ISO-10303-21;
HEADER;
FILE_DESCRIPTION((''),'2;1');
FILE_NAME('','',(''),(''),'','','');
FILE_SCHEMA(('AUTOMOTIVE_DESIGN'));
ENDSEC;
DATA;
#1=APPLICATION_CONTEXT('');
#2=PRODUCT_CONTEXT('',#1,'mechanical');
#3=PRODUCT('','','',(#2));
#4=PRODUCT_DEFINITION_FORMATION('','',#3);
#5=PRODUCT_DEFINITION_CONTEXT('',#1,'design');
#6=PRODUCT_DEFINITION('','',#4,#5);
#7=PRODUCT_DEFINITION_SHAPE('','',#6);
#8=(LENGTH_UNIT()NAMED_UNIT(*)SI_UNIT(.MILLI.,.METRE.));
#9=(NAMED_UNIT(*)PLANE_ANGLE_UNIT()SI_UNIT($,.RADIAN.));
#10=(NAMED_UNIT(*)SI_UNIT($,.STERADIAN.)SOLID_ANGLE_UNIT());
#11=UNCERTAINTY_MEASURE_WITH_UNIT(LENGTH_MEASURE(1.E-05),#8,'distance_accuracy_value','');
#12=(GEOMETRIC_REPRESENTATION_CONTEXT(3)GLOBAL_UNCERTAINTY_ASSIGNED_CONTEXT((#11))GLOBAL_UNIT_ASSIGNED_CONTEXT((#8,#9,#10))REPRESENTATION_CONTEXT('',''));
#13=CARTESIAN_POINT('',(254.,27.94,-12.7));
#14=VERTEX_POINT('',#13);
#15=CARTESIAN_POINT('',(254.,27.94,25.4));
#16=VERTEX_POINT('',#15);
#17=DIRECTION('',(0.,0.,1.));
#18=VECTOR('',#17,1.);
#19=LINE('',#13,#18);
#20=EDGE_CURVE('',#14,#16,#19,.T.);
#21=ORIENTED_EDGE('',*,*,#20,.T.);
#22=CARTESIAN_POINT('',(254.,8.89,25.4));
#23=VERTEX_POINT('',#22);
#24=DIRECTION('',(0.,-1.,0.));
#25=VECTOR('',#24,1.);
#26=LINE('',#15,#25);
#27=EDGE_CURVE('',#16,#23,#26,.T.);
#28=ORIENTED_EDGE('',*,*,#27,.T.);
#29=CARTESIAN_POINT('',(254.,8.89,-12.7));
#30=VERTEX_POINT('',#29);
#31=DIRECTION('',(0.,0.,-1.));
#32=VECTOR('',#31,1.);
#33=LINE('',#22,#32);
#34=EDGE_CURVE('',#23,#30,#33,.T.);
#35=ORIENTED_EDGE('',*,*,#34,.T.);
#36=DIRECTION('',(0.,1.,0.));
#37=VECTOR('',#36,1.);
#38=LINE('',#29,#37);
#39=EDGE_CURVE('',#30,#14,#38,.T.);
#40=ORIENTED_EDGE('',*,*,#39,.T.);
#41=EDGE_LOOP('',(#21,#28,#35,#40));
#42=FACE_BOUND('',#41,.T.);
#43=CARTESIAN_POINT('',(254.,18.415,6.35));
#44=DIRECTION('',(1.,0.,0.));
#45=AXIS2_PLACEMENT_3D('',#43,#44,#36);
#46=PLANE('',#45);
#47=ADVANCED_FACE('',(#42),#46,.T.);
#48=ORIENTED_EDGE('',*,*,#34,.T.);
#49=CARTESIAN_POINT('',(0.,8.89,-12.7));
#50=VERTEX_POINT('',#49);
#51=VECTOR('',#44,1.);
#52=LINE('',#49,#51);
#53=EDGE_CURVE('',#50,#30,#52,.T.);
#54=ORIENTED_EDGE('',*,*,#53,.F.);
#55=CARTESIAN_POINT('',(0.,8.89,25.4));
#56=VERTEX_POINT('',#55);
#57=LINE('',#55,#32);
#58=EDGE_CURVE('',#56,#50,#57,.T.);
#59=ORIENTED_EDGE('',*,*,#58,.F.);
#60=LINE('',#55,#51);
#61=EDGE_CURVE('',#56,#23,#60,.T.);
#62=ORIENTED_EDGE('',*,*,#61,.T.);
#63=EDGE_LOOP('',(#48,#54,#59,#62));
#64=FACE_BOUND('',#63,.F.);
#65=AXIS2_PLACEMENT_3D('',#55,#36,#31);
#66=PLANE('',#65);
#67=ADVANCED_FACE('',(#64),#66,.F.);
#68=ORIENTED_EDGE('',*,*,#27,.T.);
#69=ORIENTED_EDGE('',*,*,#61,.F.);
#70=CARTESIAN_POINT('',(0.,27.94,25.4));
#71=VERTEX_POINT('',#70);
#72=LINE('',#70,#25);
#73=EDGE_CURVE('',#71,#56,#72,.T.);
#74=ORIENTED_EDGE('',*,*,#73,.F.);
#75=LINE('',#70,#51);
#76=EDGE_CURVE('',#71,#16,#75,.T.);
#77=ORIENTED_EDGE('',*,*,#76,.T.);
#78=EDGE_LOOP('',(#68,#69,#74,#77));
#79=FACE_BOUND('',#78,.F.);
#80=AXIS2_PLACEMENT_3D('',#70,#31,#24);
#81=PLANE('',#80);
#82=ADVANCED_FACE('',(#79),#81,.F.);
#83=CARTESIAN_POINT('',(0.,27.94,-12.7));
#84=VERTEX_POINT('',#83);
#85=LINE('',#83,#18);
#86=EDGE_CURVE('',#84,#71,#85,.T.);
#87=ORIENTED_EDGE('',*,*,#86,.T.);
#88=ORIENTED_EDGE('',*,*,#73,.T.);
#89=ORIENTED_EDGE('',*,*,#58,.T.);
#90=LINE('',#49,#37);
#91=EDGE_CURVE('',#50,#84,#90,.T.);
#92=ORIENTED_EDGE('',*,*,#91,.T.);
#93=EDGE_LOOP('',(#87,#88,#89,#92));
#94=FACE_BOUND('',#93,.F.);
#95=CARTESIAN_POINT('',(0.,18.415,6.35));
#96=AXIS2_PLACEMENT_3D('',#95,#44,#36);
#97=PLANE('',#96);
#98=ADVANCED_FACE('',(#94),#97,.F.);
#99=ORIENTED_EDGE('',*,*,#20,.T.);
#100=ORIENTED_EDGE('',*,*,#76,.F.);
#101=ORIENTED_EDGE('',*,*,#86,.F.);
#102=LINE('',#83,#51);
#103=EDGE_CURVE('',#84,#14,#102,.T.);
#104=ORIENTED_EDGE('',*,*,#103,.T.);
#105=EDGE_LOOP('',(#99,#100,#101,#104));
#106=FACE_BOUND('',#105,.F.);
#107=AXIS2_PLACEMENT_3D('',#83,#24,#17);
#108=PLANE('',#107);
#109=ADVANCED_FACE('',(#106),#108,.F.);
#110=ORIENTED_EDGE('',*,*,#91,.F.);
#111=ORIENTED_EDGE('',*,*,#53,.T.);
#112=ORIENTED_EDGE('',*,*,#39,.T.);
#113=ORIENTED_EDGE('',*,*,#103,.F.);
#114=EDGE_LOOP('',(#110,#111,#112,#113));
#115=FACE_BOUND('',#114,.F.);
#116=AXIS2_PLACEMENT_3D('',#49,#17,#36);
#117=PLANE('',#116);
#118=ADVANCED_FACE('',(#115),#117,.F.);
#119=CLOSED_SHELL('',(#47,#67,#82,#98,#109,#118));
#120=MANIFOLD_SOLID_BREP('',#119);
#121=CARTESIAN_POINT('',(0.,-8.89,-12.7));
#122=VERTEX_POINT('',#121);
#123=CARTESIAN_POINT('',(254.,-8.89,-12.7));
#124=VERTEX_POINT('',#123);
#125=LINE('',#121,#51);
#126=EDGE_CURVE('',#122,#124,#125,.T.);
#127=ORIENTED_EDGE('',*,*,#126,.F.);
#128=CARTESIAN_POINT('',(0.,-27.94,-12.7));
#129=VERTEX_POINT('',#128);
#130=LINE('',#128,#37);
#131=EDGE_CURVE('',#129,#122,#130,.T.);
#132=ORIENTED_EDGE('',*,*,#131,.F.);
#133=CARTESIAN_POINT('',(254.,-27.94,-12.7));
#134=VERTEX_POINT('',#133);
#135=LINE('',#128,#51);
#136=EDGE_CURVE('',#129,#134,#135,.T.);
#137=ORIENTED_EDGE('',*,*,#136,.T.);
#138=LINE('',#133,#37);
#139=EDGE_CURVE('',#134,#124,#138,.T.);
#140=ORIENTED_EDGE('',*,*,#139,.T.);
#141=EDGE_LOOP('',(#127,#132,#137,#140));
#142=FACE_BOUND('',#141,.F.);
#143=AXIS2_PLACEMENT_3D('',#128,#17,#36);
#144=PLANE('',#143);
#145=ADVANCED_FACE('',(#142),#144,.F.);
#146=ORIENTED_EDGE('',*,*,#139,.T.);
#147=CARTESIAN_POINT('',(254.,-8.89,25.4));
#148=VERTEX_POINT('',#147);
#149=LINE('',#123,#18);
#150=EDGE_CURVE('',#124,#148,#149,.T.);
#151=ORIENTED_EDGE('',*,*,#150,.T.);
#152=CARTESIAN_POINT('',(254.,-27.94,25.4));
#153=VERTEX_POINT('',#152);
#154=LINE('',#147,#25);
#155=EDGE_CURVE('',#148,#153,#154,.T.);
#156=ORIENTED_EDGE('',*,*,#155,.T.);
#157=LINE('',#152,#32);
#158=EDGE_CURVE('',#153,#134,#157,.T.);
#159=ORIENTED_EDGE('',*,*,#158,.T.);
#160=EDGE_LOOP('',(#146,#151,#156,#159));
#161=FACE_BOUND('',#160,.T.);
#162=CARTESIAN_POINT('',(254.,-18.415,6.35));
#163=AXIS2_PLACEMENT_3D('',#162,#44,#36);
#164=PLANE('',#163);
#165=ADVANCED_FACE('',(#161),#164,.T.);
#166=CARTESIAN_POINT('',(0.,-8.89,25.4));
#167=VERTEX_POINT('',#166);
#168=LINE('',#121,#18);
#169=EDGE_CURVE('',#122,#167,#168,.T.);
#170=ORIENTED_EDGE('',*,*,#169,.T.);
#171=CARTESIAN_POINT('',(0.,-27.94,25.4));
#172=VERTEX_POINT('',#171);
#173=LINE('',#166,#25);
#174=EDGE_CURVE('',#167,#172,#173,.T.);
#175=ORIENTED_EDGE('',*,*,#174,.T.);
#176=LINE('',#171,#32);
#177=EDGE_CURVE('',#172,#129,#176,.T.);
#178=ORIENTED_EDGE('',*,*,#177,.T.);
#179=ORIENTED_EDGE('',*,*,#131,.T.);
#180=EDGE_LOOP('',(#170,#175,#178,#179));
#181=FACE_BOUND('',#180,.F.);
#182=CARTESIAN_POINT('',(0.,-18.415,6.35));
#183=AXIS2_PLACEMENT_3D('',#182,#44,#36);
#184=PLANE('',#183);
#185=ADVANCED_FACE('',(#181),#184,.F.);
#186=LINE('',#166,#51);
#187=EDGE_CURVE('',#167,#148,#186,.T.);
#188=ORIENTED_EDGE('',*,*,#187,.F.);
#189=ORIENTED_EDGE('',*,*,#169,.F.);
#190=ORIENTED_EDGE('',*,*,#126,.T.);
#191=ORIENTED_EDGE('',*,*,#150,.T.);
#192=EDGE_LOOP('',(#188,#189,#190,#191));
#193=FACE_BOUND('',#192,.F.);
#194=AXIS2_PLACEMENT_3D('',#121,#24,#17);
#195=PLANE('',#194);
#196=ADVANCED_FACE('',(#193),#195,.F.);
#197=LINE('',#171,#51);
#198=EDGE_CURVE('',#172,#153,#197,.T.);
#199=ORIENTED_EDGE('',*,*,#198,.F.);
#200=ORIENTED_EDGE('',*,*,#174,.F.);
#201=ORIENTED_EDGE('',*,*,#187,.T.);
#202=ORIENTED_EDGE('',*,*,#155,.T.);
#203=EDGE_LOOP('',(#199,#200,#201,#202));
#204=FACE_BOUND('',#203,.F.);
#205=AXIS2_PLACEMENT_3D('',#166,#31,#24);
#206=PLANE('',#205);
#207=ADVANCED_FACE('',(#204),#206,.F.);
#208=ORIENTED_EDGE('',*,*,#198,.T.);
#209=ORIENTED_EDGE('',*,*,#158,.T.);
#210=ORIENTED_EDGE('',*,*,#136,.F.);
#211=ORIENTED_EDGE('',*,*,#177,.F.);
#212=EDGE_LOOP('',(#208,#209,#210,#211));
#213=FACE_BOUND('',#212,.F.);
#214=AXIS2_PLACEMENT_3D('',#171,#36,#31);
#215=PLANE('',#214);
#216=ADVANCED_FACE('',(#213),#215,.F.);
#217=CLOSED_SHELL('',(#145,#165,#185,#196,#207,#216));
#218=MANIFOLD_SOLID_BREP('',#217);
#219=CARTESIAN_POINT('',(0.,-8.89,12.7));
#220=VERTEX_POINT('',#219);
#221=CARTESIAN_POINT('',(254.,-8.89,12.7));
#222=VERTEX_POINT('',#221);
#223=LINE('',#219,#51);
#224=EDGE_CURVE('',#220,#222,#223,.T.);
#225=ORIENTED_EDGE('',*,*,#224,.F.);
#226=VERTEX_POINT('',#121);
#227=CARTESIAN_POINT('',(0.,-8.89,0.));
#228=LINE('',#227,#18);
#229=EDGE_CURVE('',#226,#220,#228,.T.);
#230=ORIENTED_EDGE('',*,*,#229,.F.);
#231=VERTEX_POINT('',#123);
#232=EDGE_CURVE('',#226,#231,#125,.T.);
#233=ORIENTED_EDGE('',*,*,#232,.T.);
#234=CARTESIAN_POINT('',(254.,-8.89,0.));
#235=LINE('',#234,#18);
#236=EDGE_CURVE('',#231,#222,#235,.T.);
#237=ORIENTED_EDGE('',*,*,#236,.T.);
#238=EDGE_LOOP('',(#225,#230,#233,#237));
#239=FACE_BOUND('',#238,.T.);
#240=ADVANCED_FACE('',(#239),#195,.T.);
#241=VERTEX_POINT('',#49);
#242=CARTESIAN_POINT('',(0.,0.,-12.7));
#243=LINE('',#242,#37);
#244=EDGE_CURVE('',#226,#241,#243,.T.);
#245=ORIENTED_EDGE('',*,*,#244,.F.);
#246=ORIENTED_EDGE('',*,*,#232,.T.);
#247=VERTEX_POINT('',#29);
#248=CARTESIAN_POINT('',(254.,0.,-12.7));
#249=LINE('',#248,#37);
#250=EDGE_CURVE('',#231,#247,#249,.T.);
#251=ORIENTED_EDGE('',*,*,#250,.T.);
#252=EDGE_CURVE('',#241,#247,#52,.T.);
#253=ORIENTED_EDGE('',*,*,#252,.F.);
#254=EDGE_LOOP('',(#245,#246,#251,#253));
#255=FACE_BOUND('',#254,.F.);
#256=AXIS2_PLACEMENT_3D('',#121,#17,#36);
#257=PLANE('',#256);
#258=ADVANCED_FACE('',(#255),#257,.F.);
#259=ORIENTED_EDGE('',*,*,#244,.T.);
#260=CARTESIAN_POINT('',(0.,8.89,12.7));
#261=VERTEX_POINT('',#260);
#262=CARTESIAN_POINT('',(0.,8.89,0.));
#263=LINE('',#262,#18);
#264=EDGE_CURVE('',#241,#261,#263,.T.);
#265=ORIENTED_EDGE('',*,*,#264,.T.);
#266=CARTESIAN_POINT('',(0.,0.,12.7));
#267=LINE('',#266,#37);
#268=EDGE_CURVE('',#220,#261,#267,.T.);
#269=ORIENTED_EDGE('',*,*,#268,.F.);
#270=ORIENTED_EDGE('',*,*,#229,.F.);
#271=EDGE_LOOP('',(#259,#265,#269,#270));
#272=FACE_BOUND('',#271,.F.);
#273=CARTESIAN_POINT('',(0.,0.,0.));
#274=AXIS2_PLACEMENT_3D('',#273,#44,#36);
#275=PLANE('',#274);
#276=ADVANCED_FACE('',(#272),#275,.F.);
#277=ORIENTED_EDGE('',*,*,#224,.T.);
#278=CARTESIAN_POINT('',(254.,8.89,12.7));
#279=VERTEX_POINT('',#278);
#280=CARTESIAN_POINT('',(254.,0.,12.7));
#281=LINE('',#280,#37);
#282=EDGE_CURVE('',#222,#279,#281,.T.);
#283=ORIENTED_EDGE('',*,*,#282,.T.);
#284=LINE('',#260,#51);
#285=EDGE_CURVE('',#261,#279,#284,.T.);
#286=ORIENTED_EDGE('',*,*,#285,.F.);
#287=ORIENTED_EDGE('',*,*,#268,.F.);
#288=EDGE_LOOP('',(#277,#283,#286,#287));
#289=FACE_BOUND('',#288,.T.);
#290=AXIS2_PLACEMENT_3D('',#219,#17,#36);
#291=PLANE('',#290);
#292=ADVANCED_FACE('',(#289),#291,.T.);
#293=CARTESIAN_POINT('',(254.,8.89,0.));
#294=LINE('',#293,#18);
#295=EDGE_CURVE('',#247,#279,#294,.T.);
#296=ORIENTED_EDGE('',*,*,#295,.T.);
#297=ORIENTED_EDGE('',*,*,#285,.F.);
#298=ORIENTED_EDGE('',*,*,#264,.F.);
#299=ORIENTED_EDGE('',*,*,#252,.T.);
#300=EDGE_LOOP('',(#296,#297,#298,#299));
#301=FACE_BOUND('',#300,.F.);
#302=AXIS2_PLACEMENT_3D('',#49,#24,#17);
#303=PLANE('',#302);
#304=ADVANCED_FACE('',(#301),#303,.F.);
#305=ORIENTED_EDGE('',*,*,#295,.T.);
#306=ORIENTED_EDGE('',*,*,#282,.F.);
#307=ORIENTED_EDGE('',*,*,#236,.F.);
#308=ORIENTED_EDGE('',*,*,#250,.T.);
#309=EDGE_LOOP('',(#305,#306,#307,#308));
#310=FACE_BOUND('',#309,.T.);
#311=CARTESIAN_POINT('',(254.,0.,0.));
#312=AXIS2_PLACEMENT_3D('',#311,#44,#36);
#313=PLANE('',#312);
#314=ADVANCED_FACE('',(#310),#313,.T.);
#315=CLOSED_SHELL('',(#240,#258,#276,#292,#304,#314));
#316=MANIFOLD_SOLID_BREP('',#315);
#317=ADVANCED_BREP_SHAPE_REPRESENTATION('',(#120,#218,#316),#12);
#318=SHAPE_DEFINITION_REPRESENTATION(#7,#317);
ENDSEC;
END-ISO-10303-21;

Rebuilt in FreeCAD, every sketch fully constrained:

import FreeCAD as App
import Part
import Sketcher
from FreeCAD import Vector
Q = App.Units.Quantity

doc = App.newDocument("Part")
body = doc.addObject("PartDesign::Body", "Body")

sketch1 = body.newObject("Sketcher::SketchObject", "Sketch")
sketch1.AttachmentSupport = (doc.getObject("YZ_Plane"), [""])
sketch1.MapMode = "FlatFace"
sketch1.addGeometry([
    Part.LineSegment(Vector(-8.89, 12.7, 0), Vector(-8.89, -12.7, 0)),
    Part.LineSegment(Vector(-8.89, -12.7, 0), Vector(8.89, -12.7, 0)),
    Part.LineSegment(Vector(8.89, -12.7, 0), Vector(8.89, 12.7, 0)),
    Part.LineSegment(Vector(8.89, 12.7, 0), Vector(-8.89, 12.7, 0)),
], False)
sketch1.addConstraint([
    Sketcher.Constraint("Coincident", 0, 2, 1, 1),
    Sketcher.Constraint("Coincident", 1, 2, 2, 1),
    Sketcher.Constraint("Coincident", 2, 2, 3, 1),
    Sketcher.Constraint("Coincident", 3, 2, 0, 1),
    Sketcher.Constraint("Vertical", 0),
    Sketcher.Constraint("Horizontal", 1),
    Sketcher.Constraint("Vertical", 2),
    Sketcher.Constraint("Horizontal", 3),
    Sketcher.Constraint("Symmetric", 0, 2, 2, 2, -1, 1),
    Sketcher.Constraint("DistanceY", 0, 2, 0, 1, Q("1 in")),
    Sketcher.Constraint("DistanceX", 1, 1, 1, 2, Q("0.7 in")),
])
pad1 = body.newObject("PartDesign::Pad", "Pad")
pad1.Profile = sketch1
pad1.Length = Q("10 in")
body2 = doc.addObject("PartDesign::Body", "Body001")
body2.AllowCompound = True

sketch2 = body2.newObject("Sketcher::SketchObject", "Sketch001")
sketch2.AttachmentSupport = (doc.getObject("YZ_Plane001"), [""])
sketch2.MapMode = "FlatFace"
sketch2.addGeometry([
    Part.LineSegment(Vector(-27.94, -12.7, 0), Vector(-8.89, -12.7, 0)),
    Part.LineSegment(Vector(-8.89, -12.7, 0), Vector(-8.89, 25.4, 0)),
    Part.LineSegment(Vector(-8.89, 25.4, 0), Vector(-27.94, 25.4, 0)),
    Part.LineSegment(Vector(-27.94, 25.4, 0), Vector(-27.94, -12.7, 0)),
    Part.LineSegment(Vector(8.89, -12.7, 0), Vector(27.94, -12.7, 0)),
    Part.LineSegment(Vector(27.94, -12.7, 0), Vector(27.94, 25.4, 0)),
    Part.LineSegment(Vector(27.94, 25.4, 0), Vector(8.89, 25.4, 0)),
    Part.LineSegment(Vector(8.89, 25.4, 0), Vector(8.89, -12.7, 0)),
], False)
sketch2.addConstraint([
    Sketcher.Constraint("Coincident", 0, 2, 1, 1),
    Sketcher.Constraint("Coincident", 1, 2, 2, 1),
    Sketcher.Constraint("Coincident", 2, 2, 3, 1),
    Sketcher.Constraint("Coincident", 3, 2, 0, 1),
    Sketcher.Constraint("Coincident", 4, 2, 5, 1),
    Sketcher.Constraint("Coincident", 5, 2, 6, 1),
    Sketcher.Constraint("Coincident", 6, 2, 7, 1),
    Sketcher.Constraint("Coincident", 7, 2, 4, 1),
    Sketcher.Constraint("Horizontal", 0),
    Sketcher.Constraint("Vertical", 1),
    Sketcher.Constraint("Horizontal", 2),
    Sketcher.Constraint("Vertical", 3),
    Sketcher.Constraint("Horizontal", 4),
    Sketcher.Constraint("Vertical", 5),
    Sketcher.Constraint("Horizontal", 6),
    Sketcher.Constraint("Vertical", 7),
    Sketcher.Constraint("Symmetric", 3, 2, 4, 2, -2),
    Sketcher.Constraint("Symmetric", 1, 2, 6, 2, -2),
    Sketcher.Constraint("DistanceY", 1, 1, 1, 2, Q("1.5 in")),
    Sketcher.Constraint("DistanceY", -1, 1, 1, 2, Q("1 in")),
    Sketcher.Constraint("DistanceX", 0, 1, 0, 2, Q("0.75 in")),
    Sketcher.Constraint("DistanceX", 2, 2, -1, 1, Q("1.1 in")),
])
pad2 = body2.newObject("PartDesign::Pad", "Pad001")
pad2.Profile = sketch2
pad2.Length = Q("10 in")

doc.recompute()
